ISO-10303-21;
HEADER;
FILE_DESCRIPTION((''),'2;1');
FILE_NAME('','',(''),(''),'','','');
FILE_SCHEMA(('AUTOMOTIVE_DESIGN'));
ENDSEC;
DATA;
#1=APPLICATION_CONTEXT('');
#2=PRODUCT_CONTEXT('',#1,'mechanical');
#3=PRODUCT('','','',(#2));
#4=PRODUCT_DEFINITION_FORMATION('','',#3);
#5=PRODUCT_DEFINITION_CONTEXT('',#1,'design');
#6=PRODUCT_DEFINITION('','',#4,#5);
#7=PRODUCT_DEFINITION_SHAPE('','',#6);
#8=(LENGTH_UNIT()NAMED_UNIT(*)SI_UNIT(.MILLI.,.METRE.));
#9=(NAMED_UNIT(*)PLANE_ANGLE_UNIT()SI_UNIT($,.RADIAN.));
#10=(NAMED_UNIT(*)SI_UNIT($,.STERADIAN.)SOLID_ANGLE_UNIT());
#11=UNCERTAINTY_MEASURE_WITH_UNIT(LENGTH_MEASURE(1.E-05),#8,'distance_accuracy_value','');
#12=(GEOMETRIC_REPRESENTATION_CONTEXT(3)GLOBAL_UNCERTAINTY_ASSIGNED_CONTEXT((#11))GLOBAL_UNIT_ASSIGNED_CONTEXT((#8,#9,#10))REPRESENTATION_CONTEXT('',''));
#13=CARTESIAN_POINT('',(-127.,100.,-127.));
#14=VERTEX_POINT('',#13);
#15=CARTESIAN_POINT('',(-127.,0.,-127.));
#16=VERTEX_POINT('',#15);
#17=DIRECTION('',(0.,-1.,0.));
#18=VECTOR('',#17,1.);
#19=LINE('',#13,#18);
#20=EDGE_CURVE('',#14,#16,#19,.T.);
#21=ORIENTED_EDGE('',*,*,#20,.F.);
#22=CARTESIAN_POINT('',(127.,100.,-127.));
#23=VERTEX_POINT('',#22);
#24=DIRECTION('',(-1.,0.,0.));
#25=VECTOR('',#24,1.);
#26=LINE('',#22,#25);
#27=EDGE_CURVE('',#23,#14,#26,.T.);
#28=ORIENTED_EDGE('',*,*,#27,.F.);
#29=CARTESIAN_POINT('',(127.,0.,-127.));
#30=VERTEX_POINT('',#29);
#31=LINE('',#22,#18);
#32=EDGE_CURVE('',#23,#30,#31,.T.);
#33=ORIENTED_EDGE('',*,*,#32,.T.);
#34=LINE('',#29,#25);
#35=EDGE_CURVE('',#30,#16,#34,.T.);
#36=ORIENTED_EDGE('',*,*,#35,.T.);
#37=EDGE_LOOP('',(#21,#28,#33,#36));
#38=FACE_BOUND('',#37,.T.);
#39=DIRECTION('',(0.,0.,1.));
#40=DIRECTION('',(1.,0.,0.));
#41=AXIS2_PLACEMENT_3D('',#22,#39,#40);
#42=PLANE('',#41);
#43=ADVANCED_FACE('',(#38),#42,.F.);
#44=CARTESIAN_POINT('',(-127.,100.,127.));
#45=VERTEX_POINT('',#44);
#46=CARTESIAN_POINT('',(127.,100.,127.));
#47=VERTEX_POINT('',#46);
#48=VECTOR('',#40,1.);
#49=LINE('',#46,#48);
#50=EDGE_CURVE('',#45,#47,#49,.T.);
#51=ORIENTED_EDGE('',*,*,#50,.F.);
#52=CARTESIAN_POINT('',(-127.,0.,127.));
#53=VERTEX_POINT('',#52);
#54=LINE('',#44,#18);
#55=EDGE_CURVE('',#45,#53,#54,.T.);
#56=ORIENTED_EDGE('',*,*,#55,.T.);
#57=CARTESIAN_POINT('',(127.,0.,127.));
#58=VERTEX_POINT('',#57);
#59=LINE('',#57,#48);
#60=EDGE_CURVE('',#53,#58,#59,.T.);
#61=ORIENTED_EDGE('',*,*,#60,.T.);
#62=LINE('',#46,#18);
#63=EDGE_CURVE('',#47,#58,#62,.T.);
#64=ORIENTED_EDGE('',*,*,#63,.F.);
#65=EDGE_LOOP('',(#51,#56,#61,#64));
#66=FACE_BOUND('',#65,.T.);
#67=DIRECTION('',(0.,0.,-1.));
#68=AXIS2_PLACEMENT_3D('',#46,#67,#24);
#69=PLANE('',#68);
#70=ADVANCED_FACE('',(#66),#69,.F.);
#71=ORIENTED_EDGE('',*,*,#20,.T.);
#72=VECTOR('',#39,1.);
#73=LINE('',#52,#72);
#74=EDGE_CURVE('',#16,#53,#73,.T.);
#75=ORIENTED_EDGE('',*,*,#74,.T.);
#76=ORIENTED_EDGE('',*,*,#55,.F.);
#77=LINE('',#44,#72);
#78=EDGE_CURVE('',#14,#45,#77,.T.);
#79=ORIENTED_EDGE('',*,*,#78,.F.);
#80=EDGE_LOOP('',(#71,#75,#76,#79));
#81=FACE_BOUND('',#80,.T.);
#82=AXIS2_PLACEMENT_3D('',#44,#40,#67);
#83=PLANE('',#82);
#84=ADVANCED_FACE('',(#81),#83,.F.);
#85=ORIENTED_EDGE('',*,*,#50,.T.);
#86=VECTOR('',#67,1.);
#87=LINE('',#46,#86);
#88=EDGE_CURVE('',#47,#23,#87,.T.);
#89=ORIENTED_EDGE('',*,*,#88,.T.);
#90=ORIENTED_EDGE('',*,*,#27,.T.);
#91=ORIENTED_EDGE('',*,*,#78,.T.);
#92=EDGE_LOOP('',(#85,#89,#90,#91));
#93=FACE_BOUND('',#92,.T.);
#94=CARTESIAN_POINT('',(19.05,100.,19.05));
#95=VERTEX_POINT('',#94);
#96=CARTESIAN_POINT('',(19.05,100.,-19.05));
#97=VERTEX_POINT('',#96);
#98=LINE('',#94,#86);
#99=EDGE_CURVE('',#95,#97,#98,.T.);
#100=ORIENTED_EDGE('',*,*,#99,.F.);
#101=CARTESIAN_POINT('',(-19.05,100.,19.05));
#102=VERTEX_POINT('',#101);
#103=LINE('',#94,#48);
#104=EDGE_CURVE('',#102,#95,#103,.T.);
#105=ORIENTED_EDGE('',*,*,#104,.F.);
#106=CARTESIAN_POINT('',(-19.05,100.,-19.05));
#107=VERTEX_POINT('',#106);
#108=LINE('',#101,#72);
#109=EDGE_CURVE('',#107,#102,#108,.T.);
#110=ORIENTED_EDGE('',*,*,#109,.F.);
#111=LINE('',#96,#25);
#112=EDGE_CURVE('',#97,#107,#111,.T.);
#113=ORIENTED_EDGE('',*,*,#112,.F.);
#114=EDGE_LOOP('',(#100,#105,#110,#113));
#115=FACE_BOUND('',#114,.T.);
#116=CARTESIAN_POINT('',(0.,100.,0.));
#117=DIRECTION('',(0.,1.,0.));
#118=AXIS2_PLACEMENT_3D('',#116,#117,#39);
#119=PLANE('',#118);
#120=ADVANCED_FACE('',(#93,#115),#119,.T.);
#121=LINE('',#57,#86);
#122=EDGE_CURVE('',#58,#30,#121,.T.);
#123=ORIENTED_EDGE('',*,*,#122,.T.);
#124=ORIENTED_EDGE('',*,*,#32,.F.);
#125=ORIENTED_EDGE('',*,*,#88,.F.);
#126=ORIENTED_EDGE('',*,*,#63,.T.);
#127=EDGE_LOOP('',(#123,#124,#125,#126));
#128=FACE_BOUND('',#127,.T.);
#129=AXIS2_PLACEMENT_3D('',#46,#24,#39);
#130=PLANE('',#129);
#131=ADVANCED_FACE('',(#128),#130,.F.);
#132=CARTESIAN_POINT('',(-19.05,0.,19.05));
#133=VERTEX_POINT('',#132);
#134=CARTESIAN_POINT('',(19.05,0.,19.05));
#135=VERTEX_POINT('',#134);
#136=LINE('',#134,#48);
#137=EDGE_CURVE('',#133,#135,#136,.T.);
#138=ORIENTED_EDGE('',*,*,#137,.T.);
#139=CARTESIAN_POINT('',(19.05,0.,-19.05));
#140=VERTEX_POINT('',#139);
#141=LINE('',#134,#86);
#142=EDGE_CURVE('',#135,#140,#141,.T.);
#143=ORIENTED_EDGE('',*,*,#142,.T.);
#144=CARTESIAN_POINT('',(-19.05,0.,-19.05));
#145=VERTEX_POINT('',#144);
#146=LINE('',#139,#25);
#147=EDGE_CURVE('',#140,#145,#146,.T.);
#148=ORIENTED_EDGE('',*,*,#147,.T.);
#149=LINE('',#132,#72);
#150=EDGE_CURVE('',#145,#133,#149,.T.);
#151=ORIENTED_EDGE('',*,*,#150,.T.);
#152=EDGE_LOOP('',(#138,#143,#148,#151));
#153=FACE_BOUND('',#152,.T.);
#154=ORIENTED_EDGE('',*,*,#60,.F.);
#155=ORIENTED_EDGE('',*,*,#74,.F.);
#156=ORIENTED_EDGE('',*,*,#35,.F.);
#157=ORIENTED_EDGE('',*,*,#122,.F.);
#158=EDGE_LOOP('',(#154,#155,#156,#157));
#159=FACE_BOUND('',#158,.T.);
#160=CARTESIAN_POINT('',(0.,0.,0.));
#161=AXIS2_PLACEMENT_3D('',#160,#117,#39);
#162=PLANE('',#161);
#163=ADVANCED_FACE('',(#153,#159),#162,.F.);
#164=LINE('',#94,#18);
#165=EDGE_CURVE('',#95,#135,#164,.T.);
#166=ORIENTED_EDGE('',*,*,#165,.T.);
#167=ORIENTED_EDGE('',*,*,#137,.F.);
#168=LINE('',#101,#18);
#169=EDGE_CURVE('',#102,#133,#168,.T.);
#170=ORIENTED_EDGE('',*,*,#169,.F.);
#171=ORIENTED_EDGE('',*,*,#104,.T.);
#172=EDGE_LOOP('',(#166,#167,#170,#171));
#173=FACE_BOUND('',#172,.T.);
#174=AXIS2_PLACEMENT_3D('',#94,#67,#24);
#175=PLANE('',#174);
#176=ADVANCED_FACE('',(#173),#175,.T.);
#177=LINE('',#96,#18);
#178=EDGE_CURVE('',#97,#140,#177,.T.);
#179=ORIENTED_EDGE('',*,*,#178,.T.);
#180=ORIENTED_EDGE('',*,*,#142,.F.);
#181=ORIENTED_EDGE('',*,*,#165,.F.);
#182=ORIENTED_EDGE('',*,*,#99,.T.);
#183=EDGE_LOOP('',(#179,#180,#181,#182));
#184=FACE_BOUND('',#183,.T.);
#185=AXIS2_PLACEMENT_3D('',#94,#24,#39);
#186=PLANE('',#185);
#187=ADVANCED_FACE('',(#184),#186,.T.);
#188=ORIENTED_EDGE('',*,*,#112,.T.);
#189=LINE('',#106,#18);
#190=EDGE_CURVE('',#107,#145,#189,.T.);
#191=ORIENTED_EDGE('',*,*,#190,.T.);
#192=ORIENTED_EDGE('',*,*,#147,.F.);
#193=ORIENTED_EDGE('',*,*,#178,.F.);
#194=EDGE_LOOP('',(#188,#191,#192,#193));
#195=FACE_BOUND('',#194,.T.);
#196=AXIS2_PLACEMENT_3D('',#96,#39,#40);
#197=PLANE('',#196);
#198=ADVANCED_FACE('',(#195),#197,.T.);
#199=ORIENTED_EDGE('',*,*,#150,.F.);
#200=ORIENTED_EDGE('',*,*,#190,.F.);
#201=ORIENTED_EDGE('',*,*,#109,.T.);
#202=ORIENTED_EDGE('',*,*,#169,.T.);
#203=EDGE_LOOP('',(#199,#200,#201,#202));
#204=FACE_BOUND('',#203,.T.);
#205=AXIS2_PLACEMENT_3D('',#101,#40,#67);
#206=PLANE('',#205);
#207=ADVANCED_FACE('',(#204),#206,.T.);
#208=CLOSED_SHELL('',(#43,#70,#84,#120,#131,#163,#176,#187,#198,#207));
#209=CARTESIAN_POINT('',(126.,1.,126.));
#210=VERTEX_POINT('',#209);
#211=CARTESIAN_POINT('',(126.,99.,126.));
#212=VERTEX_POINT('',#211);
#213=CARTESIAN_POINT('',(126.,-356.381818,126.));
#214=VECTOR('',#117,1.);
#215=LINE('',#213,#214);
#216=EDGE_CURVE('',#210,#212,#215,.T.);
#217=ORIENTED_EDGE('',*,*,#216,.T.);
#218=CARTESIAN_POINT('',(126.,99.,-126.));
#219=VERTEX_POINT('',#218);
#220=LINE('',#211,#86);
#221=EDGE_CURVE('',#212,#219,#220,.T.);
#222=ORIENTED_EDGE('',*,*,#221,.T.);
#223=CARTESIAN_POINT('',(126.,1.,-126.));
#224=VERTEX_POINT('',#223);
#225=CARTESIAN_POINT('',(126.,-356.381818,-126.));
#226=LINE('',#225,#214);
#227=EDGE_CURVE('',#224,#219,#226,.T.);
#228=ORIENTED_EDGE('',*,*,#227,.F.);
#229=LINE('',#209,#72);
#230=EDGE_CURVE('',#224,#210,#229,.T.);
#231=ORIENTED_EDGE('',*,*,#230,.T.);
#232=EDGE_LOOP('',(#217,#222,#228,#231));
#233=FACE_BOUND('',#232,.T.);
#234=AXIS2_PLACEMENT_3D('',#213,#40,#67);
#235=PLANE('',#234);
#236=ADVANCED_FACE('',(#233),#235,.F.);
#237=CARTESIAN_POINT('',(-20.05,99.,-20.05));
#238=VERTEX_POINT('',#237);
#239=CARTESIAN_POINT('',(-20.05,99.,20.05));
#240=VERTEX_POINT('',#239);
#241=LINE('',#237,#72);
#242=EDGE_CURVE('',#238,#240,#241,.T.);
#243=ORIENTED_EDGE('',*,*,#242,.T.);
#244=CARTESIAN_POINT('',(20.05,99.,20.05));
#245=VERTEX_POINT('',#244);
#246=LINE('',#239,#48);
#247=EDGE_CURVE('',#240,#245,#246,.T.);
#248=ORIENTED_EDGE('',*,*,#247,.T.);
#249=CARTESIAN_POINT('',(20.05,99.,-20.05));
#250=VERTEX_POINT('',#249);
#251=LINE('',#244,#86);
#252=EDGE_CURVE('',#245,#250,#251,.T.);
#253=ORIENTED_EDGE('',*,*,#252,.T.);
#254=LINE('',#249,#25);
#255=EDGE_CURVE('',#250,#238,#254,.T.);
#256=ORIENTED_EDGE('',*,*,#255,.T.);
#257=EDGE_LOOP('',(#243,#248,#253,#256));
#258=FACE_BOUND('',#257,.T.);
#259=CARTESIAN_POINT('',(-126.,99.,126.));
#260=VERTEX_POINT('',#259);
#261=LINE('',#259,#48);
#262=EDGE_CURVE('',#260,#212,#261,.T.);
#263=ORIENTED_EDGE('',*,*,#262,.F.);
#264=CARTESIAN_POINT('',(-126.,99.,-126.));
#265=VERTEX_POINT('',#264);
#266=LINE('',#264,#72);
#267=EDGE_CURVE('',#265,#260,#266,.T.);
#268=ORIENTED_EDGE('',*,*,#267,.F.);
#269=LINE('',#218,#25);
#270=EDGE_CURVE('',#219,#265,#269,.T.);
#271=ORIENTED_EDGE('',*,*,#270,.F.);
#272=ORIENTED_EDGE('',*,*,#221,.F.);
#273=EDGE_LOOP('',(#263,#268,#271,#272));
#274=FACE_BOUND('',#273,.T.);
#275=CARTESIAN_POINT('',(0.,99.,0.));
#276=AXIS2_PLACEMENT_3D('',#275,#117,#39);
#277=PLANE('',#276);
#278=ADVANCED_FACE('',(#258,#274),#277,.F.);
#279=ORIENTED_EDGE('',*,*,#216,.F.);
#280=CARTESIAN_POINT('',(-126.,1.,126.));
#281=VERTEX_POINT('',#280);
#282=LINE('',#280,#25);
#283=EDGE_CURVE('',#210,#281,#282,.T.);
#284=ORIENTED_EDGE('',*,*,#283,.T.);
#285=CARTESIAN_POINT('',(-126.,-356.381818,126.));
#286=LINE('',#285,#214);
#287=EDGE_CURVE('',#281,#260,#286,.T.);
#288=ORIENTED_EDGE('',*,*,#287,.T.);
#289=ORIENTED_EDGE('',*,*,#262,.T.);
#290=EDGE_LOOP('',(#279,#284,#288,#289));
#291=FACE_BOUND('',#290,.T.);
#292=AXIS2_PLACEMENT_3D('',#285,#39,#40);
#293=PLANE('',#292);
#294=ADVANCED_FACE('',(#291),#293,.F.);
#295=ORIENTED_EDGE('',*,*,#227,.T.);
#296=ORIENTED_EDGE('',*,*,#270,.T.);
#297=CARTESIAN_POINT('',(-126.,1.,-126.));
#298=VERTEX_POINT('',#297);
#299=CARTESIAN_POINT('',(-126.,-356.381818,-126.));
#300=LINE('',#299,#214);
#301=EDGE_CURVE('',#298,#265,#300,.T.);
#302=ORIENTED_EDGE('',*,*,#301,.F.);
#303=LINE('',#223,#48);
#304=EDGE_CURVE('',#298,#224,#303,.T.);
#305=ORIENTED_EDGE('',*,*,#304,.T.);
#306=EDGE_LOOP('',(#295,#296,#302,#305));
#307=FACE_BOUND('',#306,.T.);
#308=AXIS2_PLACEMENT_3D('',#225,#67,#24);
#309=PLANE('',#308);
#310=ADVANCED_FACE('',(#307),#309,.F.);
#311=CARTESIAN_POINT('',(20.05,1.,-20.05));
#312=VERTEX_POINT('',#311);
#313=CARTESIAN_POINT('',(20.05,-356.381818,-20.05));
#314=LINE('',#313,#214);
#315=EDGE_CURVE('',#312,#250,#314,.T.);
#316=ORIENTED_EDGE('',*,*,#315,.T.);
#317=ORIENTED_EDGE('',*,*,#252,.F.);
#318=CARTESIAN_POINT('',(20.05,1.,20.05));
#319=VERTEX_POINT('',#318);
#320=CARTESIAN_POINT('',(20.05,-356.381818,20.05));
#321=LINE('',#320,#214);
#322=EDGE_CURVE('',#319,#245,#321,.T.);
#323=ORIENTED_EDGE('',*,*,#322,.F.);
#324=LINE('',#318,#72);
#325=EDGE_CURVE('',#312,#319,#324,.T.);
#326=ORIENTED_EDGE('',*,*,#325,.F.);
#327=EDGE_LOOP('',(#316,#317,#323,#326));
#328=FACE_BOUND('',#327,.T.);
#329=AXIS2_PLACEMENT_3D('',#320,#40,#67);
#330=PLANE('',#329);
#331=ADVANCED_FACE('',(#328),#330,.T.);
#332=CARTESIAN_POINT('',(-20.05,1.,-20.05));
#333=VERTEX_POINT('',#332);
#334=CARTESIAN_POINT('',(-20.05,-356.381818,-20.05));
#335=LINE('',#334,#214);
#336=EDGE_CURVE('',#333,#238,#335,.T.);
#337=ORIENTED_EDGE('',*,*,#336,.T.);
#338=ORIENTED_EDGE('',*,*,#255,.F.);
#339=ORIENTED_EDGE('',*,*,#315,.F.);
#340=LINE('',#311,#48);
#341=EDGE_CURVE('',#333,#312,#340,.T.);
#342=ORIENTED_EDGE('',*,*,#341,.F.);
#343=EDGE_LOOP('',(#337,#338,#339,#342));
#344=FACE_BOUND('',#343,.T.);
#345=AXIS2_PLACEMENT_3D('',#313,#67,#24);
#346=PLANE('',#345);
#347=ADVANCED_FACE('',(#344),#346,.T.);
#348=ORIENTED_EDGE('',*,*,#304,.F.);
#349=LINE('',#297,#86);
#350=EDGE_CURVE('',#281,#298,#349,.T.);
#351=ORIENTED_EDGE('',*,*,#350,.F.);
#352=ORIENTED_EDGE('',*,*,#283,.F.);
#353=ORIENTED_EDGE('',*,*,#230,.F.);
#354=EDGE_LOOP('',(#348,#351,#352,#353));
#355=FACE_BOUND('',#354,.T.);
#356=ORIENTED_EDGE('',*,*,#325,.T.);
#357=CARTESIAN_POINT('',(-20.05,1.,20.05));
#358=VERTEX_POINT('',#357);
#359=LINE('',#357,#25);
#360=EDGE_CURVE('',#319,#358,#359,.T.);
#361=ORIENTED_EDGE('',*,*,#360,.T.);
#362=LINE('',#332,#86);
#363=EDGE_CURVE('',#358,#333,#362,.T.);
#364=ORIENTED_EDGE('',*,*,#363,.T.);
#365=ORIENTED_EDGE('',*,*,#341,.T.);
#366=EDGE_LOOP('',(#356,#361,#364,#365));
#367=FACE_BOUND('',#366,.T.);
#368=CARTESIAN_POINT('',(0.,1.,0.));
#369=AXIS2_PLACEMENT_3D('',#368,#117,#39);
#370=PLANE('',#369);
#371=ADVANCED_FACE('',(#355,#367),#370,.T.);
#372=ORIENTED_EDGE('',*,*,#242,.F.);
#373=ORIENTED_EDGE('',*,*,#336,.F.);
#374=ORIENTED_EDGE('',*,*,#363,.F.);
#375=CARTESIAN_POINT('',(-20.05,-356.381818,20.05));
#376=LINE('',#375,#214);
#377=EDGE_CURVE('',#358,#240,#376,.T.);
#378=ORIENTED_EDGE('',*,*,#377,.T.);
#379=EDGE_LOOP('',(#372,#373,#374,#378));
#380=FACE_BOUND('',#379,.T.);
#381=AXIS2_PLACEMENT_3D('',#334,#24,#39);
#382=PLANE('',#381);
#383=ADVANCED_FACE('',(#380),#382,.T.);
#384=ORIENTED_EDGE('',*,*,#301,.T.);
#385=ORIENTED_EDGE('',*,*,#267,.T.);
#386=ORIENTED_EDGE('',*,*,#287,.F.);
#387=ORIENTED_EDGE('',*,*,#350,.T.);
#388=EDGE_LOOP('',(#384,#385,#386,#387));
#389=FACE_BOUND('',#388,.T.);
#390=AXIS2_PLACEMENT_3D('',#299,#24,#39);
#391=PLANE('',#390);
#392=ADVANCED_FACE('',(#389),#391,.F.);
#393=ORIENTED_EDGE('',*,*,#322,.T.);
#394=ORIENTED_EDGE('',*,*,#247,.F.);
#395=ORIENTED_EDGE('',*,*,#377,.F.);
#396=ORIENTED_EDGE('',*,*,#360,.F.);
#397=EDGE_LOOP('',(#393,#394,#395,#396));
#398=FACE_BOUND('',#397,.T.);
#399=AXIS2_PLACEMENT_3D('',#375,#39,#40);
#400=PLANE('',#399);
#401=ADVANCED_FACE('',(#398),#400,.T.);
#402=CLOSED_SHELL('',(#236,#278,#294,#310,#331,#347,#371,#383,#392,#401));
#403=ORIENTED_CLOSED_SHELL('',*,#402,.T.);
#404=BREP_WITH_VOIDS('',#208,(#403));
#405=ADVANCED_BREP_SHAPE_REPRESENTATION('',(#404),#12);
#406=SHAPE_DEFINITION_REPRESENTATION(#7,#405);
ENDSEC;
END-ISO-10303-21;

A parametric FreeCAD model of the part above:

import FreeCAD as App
import Part
import Sketcher

V = App.Vector
Q = App.Units.Quantity


def add_polygon(sketch, points):
    """Adds a closed chain of lines whose ends are joined by coincident constraints."""
    first, n = sketch.GeometryCount, len(points)
    for a, b in zip(points, points[1:] + points[:1]):
        sketch.addGeometry(Part.LineSegment(App.Vector(*a, 0), App.Vector(*b, 0)), False)
    for i in range(n):
        sketch.addConstraint(Sketcher.Constraint("Coincident", first + i, 2, first + (i + 1) % n, 1))

doc = App.newDocument("Part")
body = doc.addObject("PartDesign::Body", "Body")

sketch1 = doc.addObject("Sketcher::SketchObject", "Sketch")
body.addObject(sketch1)
sketch1.AttachmentSupport = (doc.XZ_Plane, [""])
sketch1.MapMode = "FlatFace"
add_polygon(sketch1, [(-127, -127), (-127, 127), (127, 127), (127, -127)])
add_polygon(sketch1, [(19, 19), (-19, 19), (-19, -19), (19, -19)])
sketch1.addConstraint([
    Sketcher.Constraint("Vertical", 0),
    Sketcher.Constraint("Horizontal", 1),
    Sketcher.Constraint("Vertical", 2),
    Sketcher.Constraint("Horizontal", 3),
    Sketcher.Constraint("Horizontal", 4),
    Sketcher.Constraint("Vertical", 5),
    Sketcher.Constraint("Horizontal", 6),
    Sketcher.Constraint("Vertical", 7),
    Sketcher.Constraint("Symmetric", 0, 2, 2, 2, -1, 1),
    Sketcher.Constraint("Symmetric", 4, 2, 6, 2, -1, 1),
    Sketcher.Constraint("Equal", 3, 0),
    Sketcher.Constraint("Equal", 6, 5),
    Sketcher.Constraint("DistanceX", 1, 1, 1, 2, Q("254 mm")),
    Sketcher.Constraint("DistanceX", 4, 2, 4, 1, Q("38.1 mm")),
])
pad1 = doc.addObject("PartDesign::Pad", "Pad")
body.addObject(pad1)
pad1.Profile = sketch1
pad1.Length = 100
pad1.Reversed = True

sketch2 = doc.addObject("Sketcher::SketchObject", "Sketch001")
body.addObject(sketch2)
sketch2.AttachmentSupport = (doc.XZ_Plane, [""])
sketch2.MapMode = "FlatFace"
sketch2.AttachmentOffset = App.Placement(V(0, 0, -99), App.Rotation())
add_polygon(sketch2, [(-126, -126), (-126, 126), (126, 126), (126, -126)])
add_polygon(sketch2, [(20, 20), (-20, 20), (-20, -20), (20, -20)])
sketch2.addConstraint([
    Sketcher.Constraint("Vertical", 0),
    Sketcher.Constraint("Horizontal", 1),
    Sketcher.Constraint("Vertical", 2),
    Sketcher.Constraint("Horizontal", 3),
    Sketcher.Constraint("Horizontal", 4),
    Sketcher.Constraint("Vertical", 5),
    Sketcher.Constraint("Horizontal", 6),
    Sketcher.Constraint("Vertical", 7),
    Sketcher.Constraint("Symmetric", 0, 2, 2, 2, -1, 1),
    Sketcher.Constraint("Symmetric", 4, 2, 6, 2, -1, 1),
    Sketcher.Constraint("Equal", 3, 0),
    Sketcher.Constraint("Equal", 6, 5),
    Sketcher.Constraint("DistanceX", 1, 1, 1, 2, Q("252 mm")),
    Sketcher.Constraint("DistanceX", 4, 2, 4, 1, Q("40.1 mm")),
])
pocket1 = doc.addObject("PartDesign::Pocket", "Pocket")
body.addObject(pocket1)
pocket1.Profile = sketch2
pocket1.Length = 98
pocket1.Reversed = True

doc.recompute()
